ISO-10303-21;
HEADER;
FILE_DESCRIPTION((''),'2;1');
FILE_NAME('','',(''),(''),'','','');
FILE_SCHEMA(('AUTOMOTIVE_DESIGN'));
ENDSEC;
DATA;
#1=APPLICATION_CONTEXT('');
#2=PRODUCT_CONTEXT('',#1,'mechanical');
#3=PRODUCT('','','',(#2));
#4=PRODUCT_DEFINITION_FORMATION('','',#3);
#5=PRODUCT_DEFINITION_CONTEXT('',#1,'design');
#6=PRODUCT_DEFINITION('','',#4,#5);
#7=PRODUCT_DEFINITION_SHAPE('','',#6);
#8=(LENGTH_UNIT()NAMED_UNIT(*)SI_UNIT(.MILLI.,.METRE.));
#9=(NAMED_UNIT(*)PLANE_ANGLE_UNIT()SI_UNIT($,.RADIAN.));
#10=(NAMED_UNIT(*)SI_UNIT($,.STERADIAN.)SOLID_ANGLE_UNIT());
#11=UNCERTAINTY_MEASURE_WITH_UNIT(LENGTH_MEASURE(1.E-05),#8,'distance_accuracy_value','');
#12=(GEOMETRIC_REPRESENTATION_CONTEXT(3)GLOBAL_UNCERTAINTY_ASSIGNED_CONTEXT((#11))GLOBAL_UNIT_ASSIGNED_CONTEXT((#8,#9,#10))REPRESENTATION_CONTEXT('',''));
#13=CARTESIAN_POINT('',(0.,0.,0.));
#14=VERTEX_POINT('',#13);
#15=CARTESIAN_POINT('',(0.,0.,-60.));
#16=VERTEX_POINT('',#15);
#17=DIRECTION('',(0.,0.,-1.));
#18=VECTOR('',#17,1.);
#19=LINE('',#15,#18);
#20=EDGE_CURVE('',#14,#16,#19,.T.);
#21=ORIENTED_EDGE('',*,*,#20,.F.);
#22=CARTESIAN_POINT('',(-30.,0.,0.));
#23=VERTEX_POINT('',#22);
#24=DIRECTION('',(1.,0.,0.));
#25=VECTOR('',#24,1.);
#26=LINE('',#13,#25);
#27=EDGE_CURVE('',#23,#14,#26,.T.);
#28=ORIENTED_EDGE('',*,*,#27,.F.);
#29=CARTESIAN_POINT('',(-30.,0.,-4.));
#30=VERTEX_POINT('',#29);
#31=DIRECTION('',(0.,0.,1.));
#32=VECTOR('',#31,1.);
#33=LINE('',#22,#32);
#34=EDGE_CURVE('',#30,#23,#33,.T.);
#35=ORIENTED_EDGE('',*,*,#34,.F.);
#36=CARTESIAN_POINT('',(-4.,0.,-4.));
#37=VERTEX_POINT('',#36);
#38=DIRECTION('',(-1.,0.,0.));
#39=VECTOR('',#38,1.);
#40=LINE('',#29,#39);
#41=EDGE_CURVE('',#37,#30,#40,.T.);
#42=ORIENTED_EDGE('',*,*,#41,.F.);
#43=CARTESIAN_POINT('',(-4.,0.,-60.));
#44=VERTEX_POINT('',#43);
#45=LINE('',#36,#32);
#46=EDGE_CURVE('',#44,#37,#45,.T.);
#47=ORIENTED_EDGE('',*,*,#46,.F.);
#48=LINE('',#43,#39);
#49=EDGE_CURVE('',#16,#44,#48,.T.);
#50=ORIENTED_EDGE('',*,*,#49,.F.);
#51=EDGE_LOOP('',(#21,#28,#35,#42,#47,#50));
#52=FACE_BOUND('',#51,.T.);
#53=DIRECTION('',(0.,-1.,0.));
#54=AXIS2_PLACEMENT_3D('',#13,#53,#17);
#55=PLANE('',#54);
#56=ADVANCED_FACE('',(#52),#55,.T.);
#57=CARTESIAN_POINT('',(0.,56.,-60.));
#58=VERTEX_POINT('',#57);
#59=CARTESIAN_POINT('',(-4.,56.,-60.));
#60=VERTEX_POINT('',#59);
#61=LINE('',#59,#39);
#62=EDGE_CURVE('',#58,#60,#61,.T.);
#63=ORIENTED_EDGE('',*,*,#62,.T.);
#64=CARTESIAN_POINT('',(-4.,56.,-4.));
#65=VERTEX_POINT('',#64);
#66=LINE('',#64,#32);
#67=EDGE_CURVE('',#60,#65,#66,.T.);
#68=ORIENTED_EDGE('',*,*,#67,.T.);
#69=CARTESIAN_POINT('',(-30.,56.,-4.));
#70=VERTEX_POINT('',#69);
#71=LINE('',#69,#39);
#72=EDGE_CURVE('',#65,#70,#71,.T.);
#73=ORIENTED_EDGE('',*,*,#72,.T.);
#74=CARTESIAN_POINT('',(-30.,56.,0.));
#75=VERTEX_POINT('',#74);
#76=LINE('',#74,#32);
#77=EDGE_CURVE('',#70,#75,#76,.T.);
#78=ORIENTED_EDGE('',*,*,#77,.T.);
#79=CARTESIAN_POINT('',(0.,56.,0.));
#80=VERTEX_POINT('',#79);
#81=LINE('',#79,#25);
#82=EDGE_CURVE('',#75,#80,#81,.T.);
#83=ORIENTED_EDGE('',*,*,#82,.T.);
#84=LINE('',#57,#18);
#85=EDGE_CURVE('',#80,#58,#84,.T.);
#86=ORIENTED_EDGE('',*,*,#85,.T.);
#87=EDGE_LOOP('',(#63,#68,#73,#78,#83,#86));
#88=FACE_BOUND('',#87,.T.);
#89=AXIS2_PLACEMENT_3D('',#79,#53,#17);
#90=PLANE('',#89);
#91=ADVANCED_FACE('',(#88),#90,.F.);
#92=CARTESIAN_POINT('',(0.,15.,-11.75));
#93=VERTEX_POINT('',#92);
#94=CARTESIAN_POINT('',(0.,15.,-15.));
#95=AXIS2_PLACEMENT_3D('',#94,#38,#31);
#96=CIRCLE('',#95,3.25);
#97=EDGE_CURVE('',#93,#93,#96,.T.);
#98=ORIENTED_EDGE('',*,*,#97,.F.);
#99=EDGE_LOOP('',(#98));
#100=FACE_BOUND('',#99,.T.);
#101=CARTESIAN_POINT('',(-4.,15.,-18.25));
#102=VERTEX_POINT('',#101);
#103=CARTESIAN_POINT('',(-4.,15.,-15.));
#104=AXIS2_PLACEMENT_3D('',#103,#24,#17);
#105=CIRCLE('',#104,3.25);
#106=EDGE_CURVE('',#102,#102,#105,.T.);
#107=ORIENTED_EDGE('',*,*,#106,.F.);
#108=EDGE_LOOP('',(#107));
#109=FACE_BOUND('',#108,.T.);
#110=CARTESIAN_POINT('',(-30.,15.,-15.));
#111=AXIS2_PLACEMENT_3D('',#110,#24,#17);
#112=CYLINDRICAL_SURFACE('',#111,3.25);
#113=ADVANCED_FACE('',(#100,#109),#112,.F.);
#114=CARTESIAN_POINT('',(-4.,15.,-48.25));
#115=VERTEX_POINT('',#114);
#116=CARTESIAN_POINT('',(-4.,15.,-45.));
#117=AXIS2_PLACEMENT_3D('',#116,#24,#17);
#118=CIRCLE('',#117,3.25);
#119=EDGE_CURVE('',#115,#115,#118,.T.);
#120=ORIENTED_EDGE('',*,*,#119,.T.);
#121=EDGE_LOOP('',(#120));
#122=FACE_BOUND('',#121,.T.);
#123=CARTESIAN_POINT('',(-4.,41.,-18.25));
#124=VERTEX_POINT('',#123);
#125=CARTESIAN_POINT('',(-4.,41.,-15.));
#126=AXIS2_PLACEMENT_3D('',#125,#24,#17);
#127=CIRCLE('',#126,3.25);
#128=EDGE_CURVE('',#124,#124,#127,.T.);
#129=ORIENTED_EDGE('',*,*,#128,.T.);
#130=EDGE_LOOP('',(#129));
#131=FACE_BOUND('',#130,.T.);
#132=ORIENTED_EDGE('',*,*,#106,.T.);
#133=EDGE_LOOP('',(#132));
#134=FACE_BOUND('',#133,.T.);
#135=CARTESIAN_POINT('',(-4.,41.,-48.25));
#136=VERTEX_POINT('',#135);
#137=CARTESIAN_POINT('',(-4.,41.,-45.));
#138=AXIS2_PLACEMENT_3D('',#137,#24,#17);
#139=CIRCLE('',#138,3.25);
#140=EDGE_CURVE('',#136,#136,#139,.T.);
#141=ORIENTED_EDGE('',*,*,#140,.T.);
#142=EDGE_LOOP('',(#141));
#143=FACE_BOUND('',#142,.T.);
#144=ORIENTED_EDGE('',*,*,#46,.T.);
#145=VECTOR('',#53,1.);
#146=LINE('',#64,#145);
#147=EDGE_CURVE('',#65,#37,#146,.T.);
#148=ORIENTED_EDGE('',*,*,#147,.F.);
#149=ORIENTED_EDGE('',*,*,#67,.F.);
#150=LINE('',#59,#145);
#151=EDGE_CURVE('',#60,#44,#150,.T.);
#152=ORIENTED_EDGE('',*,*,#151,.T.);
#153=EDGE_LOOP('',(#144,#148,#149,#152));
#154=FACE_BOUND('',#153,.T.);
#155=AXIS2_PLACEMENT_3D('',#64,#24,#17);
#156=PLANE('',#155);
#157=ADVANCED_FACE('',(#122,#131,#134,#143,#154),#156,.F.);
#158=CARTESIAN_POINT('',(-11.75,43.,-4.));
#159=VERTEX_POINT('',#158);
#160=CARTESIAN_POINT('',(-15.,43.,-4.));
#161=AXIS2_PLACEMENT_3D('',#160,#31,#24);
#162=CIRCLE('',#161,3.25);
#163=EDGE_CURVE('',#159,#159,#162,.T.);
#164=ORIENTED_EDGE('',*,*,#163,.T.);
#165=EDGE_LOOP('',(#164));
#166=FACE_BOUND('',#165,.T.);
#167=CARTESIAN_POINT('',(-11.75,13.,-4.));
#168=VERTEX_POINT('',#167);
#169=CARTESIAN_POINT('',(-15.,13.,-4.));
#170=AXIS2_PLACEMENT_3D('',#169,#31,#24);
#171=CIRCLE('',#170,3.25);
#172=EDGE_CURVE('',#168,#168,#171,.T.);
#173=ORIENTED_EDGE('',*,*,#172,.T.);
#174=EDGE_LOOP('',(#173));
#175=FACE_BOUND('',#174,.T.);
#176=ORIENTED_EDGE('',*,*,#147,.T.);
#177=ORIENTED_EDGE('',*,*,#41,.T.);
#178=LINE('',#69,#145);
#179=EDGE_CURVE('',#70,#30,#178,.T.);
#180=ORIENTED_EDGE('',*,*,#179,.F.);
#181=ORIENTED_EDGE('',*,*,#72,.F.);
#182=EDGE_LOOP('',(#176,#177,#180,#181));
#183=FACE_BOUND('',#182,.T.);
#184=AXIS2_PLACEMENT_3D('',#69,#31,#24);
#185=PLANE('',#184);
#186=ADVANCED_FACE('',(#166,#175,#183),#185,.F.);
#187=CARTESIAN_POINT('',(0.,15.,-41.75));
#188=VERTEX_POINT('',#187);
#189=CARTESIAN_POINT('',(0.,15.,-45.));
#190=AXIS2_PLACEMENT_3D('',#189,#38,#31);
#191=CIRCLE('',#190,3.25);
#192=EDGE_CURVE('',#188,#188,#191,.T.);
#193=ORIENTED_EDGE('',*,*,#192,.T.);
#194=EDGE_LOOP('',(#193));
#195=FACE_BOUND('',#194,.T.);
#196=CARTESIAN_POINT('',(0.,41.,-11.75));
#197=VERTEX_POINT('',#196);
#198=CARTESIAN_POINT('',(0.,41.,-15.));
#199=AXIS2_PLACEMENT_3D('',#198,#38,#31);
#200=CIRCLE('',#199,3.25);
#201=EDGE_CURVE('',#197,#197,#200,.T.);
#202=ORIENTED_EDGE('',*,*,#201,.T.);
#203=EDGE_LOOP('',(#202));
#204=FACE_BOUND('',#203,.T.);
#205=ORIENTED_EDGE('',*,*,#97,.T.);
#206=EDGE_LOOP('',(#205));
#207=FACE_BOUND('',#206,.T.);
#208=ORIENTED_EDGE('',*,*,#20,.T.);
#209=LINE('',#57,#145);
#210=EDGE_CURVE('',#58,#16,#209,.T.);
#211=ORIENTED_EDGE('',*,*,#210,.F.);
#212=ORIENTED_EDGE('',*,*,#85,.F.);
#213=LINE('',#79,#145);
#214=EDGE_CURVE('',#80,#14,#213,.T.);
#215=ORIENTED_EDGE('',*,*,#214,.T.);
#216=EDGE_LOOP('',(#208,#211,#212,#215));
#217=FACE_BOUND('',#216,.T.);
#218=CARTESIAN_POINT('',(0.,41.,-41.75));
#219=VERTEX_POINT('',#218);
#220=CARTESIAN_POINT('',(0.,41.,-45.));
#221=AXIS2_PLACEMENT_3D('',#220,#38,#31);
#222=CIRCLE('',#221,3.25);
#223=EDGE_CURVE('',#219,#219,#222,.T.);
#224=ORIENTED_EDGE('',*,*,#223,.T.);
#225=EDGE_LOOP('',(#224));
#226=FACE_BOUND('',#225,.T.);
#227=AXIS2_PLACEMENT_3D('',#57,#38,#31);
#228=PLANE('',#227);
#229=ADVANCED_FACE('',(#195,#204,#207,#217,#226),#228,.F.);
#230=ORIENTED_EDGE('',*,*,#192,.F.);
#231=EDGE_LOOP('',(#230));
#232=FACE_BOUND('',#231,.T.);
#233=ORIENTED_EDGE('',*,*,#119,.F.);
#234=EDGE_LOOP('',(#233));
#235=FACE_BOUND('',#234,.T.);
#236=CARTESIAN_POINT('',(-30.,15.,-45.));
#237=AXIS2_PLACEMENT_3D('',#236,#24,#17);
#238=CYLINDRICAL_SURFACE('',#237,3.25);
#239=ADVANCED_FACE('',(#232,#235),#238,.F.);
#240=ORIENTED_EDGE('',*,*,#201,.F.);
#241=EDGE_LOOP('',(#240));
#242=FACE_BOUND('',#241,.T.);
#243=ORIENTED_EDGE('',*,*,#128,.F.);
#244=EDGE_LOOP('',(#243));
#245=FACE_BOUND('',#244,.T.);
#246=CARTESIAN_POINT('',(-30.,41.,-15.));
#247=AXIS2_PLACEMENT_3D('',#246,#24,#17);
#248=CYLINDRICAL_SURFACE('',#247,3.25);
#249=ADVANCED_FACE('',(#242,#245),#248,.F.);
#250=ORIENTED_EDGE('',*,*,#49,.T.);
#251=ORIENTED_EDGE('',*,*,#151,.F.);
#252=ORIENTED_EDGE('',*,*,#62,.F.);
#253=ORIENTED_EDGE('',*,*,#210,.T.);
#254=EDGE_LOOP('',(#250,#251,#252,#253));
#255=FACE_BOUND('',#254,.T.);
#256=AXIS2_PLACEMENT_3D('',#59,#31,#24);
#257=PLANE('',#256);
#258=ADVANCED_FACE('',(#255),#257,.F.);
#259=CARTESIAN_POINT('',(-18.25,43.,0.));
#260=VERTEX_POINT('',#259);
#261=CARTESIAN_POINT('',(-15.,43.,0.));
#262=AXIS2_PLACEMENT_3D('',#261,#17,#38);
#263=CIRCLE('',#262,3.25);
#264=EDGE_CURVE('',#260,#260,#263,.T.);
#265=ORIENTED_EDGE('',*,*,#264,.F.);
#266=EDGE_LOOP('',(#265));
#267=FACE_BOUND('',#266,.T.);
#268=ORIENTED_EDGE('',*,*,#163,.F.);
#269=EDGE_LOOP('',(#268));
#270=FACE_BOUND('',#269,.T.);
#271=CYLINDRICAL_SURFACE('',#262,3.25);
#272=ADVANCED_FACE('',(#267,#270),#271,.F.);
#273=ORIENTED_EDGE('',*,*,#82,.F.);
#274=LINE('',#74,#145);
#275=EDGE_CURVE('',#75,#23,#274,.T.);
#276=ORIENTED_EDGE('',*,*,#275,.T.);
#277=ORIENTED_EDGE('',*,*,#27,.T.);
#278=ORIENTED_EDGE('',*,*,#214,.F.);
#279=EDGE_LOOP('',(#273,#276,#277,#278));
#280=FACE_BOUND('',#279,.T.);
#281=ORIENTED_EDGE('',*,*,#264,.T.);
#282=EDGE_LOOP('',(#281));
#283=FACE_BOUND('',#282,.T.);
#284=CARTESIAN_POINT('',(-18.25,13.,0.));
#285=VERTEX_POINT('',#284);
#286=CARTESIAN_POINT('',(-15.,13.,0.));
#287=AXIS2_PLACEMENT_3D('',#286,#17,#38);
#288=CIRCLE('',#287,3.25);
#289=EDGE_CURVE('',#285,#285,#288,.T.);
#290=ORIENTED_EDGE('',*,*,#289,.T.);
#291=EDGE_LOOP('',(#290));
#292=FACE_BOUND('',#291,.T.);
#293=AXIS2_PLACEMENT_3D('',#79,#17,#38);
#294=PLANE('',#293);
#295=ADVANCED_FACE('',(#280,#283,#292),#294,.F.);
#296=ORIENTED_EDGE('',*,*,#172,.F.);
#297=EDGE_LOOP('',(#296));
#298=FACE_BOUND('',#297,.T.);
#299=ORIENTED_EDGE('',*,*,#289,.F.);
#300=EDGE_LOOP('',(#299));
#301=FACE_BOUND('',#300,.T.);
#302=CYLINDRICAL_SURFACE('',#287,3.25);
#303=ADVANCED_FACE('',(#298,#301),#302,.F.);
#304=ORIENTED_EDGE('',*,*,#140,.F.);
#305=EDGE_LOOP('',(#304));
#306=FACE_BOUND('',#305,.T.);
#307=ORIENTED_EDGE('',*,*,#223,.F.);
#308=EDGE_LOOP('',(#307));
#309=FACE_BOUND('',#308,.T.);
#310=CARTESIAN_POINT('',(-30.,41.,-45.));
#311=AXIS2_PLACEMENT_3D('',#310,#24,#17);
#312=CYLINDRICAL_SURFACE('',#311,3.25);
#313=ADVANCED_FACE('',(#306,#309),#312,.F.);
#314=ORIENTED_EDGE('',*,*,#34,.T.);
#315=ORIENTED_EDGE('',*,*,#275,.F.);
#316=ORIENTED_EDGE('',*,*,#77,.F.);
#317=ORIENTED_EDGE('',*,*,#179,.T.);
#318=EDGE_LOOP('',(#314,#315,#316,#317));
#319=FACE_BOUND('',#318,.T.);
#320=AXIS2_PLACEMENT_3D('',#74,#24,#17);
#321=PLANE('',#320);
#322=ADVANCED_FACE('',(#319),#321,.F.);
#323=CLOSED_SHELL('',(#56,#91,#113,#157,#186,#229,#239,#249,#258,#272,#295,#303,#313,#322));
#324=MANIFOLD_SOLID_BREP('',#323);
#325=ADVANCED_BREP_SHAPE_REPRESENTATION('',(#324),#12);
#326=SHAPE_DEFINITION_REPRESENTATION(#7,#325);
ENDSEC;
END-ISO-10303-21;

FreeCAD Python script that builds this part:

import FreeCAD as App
import Part
import Sketcher
from FreeCAD import Vector

doc = App.newDocument("Part")
body = doc.addObject("PartDesign::Body", "Body")

# Sketch on XZ plane
sketch1 = doc.addObject("Sketcher::SketchObject", "Sketch")
body.addObject(sketch1)
sketch1.AttachmentSupport = (doc.XZ_Plane, [""])
sketch1.MapMode = "FlatFace"
sketch1.addGeometry(Part.LineSegment(Vector(-30, 0, 0), Vector(0, 0, 0)), False)
sketch1.addGeometry(Part.LineSegment(Vector(0, 0, 0), Vector(0, -60, 0)), False)
sketch1.addGeometry(Part.LineSegment(Vector(0, -60, 0), Vector(-4, -60, 0)), False)
sketch1.addGeometry(Part.LineSegment(Vector(-4, -60, 0), Vector(-4, -4, 0)), False)
sketch1.addGeometry(Part.LineSegment(Vector(-4, -4, 0), Vector(-30, -4, 0)), False)
sketch1.addGeometry(Part.LineSegment(Vector(-30, -4, 0), Vector(-30, 0, 0)), False)
sketch1.addConstraint(Sketcher.Constraint("Coincident", 0, 2, 1, 1))
sketch1.addConstraint(Sketcher.Constraint("Coincident", 1, 2, 2, 1))
sketch1.addConstraint(Sketcher.Constraint("Coincident", 2, 2, 3, 1))
sketch1.addConstraint(Sketcher.Constraint("Coincident", 3, 2, 4, 1))
sketch1.addConstraint(Sketcher.Constraint("Coincident", 4, 2, 5, 1))
sketch1.addConstraint(Sketcher.Constraint("Coincident", 5, 2, 0, 1))
sketch1.addConstraint(Sketcher.Constraint("Horizontal", 0))
sketch1.addConstraint(Sketcher.Constraint("Vertical", 1))
sketch1.addConstraint(Sketcher.Constraint("Horizontal", 2))
sketch1.addConstraint(Sketcher.Constraint("Vertical", 3))
sketch1.addConstraint(Sketcher.Constraint("Horizontal", 4))
sketch1.addConstraint(Sketcher.Constraint("Vertical", 5))
sketch1.addConstraint(Sketcher.Constraint("Coincident", 0, 2, -1, 1))
sketch1.addConstraint(Sketcher.Constraint("Equal", 2, 5))
sketch1.addConstraint(Sketcher.Constraint("DistanceX", 0, 1, 0, 2, 30.0))
sketch1.addConstraint(Sketcher.Constraint("DistanceX", 2, 2, 2, 1, 4.0))
sketch1.addConstraint(Sketcher.Constraint("DistanceY", 1, 2, 1, 1, 60.0))
pad1 = doc.addObject("PartDesign::Pad", "Pad")
body.addObject(pad1)
pad1.Profile = sketch1
pad1.Length = 56
pad1.Reversed = True

# Sketch on XY plane
sketch2 = doc.addObject("Sketcher::SketchObject", "Sketch001")
body.addObject(sketch2)
sketch2.AttachmentSupport = (doc.XY_Plane, [""])
sketch2.MapMode = "FlatFace"
sketch2.AttachmentOffset = App.Placement(Vector(0, 0, -4), App.Rotation())
sketch2.addGeometry(Part.Circle(Vector(-15, 43, 0), Vector(0, 0, 1), 3.2), False)
sketch2.addGeometry(Part.Circle(Vector(-15, 13, 0), Vector(0, 0, 1), 3.2), False)
sketch2.addConstraint(Sketcher.Constraint("Equal", 0, 1))
sketch2.addConstraint(Sketcher.Constraint("Vertical", 0, 3, 1, 3))
sketch2.addConstraint(Sketcher.Constraint("Diameter", 0, 6.5))
sketch2.addConstraint(Sketcher.Constraint("DistanceX", 0, 3, -1, 1, 15.0))
sketch2.addConstraint(Sketcher.Constraint("DistanceY", -1, 1, 0, 3, 43.0))
sketch2.addConstraint(Sketcher.Constraint("DistanceY", -1, 1, 1, 3, 13.0))
pocket1 = doc.addObject("PartDesign::Pocket", "Pocket")
body.addObject(pocket1)
pocket1.Profile = sketch2
pocket1.Type = "ThroughAll"
pocket1.Midplane = True

# Sketch on YZ plane
sketch3 = doc.addObject("Sketcher::SketchObject", "Sketch002")
body.addObject(sketch3)
sketch3.AttachmentSupport = (doc.YZ_Plane, [""])
sketch3.MapMode = "FlatFace"
sketch3.addGeometry(Part.Circle(Vector(41, -15, 0), Vector(0, 0, 1), 3.2), False)
sketch3.addGeometry(Part.Circle(Vector(15, -15, 0), Vector(0, 0, 1), 3.2), False)
sketch3.addGeometry(Part.Circle(Vector(15, -45, 0), Vector(0, 0, 1), 3.2), False)
sketch3.addGeometry(Part.Circle(Vector(41, -45, 0), Vector(0, 0, 1), 3.2), False)
sketch3.addConstraint(Sketcher.Constraint("Equal", 0, 1))
sketch3.addConstraint(Sketcher.Constraint("Equal", 1, 2))
sketch3.addConstraint(Sketcher.Constraint("Equal", 2, 3))
sketch3.addConstraint(Sketcher.Constraint("Horizontal", 0, 3, 1, 3))
sketch3.addConstraint(Sketcher.Constraint("Horizontal", 2, 3, 3, 3))
sketch3.addConstraint(Sketcher.Constraint("Vertical", 1, 3, 2, 3))
sketch3.addConstraint(Sketcher.Constraint("Vertical", 0, 3, 3, 3))
sketch3.addConstraint(Sketcher.Constraint("Diameter", 0, 6.5))
sketch3.addConstraint(Sketcher.Constraint("DistanceX", -1, 1, 0, 3, 41.0))
sketch3.addConstraint(Sketcher.Constraint("DistanceY", 0, 3, -1, 1, 15.0))
sketch3.addConstraint(Sketcher.Constraint("DistanceX", -1, 1, 1, 3, 15.0))
sketch3.addConstraint(Sketcher.Constraint("DistanceY", 2, 3, -1, 1, 45.0))
pocket2 = doc.addObject("PartDesign::Pocket", "Pocket001")
body.addObject(pocket2)
pocket2.Profile = sketch3
pocket2.Type = "ThroughAll"
pocket2.Midplane = True

doc.recompute()
